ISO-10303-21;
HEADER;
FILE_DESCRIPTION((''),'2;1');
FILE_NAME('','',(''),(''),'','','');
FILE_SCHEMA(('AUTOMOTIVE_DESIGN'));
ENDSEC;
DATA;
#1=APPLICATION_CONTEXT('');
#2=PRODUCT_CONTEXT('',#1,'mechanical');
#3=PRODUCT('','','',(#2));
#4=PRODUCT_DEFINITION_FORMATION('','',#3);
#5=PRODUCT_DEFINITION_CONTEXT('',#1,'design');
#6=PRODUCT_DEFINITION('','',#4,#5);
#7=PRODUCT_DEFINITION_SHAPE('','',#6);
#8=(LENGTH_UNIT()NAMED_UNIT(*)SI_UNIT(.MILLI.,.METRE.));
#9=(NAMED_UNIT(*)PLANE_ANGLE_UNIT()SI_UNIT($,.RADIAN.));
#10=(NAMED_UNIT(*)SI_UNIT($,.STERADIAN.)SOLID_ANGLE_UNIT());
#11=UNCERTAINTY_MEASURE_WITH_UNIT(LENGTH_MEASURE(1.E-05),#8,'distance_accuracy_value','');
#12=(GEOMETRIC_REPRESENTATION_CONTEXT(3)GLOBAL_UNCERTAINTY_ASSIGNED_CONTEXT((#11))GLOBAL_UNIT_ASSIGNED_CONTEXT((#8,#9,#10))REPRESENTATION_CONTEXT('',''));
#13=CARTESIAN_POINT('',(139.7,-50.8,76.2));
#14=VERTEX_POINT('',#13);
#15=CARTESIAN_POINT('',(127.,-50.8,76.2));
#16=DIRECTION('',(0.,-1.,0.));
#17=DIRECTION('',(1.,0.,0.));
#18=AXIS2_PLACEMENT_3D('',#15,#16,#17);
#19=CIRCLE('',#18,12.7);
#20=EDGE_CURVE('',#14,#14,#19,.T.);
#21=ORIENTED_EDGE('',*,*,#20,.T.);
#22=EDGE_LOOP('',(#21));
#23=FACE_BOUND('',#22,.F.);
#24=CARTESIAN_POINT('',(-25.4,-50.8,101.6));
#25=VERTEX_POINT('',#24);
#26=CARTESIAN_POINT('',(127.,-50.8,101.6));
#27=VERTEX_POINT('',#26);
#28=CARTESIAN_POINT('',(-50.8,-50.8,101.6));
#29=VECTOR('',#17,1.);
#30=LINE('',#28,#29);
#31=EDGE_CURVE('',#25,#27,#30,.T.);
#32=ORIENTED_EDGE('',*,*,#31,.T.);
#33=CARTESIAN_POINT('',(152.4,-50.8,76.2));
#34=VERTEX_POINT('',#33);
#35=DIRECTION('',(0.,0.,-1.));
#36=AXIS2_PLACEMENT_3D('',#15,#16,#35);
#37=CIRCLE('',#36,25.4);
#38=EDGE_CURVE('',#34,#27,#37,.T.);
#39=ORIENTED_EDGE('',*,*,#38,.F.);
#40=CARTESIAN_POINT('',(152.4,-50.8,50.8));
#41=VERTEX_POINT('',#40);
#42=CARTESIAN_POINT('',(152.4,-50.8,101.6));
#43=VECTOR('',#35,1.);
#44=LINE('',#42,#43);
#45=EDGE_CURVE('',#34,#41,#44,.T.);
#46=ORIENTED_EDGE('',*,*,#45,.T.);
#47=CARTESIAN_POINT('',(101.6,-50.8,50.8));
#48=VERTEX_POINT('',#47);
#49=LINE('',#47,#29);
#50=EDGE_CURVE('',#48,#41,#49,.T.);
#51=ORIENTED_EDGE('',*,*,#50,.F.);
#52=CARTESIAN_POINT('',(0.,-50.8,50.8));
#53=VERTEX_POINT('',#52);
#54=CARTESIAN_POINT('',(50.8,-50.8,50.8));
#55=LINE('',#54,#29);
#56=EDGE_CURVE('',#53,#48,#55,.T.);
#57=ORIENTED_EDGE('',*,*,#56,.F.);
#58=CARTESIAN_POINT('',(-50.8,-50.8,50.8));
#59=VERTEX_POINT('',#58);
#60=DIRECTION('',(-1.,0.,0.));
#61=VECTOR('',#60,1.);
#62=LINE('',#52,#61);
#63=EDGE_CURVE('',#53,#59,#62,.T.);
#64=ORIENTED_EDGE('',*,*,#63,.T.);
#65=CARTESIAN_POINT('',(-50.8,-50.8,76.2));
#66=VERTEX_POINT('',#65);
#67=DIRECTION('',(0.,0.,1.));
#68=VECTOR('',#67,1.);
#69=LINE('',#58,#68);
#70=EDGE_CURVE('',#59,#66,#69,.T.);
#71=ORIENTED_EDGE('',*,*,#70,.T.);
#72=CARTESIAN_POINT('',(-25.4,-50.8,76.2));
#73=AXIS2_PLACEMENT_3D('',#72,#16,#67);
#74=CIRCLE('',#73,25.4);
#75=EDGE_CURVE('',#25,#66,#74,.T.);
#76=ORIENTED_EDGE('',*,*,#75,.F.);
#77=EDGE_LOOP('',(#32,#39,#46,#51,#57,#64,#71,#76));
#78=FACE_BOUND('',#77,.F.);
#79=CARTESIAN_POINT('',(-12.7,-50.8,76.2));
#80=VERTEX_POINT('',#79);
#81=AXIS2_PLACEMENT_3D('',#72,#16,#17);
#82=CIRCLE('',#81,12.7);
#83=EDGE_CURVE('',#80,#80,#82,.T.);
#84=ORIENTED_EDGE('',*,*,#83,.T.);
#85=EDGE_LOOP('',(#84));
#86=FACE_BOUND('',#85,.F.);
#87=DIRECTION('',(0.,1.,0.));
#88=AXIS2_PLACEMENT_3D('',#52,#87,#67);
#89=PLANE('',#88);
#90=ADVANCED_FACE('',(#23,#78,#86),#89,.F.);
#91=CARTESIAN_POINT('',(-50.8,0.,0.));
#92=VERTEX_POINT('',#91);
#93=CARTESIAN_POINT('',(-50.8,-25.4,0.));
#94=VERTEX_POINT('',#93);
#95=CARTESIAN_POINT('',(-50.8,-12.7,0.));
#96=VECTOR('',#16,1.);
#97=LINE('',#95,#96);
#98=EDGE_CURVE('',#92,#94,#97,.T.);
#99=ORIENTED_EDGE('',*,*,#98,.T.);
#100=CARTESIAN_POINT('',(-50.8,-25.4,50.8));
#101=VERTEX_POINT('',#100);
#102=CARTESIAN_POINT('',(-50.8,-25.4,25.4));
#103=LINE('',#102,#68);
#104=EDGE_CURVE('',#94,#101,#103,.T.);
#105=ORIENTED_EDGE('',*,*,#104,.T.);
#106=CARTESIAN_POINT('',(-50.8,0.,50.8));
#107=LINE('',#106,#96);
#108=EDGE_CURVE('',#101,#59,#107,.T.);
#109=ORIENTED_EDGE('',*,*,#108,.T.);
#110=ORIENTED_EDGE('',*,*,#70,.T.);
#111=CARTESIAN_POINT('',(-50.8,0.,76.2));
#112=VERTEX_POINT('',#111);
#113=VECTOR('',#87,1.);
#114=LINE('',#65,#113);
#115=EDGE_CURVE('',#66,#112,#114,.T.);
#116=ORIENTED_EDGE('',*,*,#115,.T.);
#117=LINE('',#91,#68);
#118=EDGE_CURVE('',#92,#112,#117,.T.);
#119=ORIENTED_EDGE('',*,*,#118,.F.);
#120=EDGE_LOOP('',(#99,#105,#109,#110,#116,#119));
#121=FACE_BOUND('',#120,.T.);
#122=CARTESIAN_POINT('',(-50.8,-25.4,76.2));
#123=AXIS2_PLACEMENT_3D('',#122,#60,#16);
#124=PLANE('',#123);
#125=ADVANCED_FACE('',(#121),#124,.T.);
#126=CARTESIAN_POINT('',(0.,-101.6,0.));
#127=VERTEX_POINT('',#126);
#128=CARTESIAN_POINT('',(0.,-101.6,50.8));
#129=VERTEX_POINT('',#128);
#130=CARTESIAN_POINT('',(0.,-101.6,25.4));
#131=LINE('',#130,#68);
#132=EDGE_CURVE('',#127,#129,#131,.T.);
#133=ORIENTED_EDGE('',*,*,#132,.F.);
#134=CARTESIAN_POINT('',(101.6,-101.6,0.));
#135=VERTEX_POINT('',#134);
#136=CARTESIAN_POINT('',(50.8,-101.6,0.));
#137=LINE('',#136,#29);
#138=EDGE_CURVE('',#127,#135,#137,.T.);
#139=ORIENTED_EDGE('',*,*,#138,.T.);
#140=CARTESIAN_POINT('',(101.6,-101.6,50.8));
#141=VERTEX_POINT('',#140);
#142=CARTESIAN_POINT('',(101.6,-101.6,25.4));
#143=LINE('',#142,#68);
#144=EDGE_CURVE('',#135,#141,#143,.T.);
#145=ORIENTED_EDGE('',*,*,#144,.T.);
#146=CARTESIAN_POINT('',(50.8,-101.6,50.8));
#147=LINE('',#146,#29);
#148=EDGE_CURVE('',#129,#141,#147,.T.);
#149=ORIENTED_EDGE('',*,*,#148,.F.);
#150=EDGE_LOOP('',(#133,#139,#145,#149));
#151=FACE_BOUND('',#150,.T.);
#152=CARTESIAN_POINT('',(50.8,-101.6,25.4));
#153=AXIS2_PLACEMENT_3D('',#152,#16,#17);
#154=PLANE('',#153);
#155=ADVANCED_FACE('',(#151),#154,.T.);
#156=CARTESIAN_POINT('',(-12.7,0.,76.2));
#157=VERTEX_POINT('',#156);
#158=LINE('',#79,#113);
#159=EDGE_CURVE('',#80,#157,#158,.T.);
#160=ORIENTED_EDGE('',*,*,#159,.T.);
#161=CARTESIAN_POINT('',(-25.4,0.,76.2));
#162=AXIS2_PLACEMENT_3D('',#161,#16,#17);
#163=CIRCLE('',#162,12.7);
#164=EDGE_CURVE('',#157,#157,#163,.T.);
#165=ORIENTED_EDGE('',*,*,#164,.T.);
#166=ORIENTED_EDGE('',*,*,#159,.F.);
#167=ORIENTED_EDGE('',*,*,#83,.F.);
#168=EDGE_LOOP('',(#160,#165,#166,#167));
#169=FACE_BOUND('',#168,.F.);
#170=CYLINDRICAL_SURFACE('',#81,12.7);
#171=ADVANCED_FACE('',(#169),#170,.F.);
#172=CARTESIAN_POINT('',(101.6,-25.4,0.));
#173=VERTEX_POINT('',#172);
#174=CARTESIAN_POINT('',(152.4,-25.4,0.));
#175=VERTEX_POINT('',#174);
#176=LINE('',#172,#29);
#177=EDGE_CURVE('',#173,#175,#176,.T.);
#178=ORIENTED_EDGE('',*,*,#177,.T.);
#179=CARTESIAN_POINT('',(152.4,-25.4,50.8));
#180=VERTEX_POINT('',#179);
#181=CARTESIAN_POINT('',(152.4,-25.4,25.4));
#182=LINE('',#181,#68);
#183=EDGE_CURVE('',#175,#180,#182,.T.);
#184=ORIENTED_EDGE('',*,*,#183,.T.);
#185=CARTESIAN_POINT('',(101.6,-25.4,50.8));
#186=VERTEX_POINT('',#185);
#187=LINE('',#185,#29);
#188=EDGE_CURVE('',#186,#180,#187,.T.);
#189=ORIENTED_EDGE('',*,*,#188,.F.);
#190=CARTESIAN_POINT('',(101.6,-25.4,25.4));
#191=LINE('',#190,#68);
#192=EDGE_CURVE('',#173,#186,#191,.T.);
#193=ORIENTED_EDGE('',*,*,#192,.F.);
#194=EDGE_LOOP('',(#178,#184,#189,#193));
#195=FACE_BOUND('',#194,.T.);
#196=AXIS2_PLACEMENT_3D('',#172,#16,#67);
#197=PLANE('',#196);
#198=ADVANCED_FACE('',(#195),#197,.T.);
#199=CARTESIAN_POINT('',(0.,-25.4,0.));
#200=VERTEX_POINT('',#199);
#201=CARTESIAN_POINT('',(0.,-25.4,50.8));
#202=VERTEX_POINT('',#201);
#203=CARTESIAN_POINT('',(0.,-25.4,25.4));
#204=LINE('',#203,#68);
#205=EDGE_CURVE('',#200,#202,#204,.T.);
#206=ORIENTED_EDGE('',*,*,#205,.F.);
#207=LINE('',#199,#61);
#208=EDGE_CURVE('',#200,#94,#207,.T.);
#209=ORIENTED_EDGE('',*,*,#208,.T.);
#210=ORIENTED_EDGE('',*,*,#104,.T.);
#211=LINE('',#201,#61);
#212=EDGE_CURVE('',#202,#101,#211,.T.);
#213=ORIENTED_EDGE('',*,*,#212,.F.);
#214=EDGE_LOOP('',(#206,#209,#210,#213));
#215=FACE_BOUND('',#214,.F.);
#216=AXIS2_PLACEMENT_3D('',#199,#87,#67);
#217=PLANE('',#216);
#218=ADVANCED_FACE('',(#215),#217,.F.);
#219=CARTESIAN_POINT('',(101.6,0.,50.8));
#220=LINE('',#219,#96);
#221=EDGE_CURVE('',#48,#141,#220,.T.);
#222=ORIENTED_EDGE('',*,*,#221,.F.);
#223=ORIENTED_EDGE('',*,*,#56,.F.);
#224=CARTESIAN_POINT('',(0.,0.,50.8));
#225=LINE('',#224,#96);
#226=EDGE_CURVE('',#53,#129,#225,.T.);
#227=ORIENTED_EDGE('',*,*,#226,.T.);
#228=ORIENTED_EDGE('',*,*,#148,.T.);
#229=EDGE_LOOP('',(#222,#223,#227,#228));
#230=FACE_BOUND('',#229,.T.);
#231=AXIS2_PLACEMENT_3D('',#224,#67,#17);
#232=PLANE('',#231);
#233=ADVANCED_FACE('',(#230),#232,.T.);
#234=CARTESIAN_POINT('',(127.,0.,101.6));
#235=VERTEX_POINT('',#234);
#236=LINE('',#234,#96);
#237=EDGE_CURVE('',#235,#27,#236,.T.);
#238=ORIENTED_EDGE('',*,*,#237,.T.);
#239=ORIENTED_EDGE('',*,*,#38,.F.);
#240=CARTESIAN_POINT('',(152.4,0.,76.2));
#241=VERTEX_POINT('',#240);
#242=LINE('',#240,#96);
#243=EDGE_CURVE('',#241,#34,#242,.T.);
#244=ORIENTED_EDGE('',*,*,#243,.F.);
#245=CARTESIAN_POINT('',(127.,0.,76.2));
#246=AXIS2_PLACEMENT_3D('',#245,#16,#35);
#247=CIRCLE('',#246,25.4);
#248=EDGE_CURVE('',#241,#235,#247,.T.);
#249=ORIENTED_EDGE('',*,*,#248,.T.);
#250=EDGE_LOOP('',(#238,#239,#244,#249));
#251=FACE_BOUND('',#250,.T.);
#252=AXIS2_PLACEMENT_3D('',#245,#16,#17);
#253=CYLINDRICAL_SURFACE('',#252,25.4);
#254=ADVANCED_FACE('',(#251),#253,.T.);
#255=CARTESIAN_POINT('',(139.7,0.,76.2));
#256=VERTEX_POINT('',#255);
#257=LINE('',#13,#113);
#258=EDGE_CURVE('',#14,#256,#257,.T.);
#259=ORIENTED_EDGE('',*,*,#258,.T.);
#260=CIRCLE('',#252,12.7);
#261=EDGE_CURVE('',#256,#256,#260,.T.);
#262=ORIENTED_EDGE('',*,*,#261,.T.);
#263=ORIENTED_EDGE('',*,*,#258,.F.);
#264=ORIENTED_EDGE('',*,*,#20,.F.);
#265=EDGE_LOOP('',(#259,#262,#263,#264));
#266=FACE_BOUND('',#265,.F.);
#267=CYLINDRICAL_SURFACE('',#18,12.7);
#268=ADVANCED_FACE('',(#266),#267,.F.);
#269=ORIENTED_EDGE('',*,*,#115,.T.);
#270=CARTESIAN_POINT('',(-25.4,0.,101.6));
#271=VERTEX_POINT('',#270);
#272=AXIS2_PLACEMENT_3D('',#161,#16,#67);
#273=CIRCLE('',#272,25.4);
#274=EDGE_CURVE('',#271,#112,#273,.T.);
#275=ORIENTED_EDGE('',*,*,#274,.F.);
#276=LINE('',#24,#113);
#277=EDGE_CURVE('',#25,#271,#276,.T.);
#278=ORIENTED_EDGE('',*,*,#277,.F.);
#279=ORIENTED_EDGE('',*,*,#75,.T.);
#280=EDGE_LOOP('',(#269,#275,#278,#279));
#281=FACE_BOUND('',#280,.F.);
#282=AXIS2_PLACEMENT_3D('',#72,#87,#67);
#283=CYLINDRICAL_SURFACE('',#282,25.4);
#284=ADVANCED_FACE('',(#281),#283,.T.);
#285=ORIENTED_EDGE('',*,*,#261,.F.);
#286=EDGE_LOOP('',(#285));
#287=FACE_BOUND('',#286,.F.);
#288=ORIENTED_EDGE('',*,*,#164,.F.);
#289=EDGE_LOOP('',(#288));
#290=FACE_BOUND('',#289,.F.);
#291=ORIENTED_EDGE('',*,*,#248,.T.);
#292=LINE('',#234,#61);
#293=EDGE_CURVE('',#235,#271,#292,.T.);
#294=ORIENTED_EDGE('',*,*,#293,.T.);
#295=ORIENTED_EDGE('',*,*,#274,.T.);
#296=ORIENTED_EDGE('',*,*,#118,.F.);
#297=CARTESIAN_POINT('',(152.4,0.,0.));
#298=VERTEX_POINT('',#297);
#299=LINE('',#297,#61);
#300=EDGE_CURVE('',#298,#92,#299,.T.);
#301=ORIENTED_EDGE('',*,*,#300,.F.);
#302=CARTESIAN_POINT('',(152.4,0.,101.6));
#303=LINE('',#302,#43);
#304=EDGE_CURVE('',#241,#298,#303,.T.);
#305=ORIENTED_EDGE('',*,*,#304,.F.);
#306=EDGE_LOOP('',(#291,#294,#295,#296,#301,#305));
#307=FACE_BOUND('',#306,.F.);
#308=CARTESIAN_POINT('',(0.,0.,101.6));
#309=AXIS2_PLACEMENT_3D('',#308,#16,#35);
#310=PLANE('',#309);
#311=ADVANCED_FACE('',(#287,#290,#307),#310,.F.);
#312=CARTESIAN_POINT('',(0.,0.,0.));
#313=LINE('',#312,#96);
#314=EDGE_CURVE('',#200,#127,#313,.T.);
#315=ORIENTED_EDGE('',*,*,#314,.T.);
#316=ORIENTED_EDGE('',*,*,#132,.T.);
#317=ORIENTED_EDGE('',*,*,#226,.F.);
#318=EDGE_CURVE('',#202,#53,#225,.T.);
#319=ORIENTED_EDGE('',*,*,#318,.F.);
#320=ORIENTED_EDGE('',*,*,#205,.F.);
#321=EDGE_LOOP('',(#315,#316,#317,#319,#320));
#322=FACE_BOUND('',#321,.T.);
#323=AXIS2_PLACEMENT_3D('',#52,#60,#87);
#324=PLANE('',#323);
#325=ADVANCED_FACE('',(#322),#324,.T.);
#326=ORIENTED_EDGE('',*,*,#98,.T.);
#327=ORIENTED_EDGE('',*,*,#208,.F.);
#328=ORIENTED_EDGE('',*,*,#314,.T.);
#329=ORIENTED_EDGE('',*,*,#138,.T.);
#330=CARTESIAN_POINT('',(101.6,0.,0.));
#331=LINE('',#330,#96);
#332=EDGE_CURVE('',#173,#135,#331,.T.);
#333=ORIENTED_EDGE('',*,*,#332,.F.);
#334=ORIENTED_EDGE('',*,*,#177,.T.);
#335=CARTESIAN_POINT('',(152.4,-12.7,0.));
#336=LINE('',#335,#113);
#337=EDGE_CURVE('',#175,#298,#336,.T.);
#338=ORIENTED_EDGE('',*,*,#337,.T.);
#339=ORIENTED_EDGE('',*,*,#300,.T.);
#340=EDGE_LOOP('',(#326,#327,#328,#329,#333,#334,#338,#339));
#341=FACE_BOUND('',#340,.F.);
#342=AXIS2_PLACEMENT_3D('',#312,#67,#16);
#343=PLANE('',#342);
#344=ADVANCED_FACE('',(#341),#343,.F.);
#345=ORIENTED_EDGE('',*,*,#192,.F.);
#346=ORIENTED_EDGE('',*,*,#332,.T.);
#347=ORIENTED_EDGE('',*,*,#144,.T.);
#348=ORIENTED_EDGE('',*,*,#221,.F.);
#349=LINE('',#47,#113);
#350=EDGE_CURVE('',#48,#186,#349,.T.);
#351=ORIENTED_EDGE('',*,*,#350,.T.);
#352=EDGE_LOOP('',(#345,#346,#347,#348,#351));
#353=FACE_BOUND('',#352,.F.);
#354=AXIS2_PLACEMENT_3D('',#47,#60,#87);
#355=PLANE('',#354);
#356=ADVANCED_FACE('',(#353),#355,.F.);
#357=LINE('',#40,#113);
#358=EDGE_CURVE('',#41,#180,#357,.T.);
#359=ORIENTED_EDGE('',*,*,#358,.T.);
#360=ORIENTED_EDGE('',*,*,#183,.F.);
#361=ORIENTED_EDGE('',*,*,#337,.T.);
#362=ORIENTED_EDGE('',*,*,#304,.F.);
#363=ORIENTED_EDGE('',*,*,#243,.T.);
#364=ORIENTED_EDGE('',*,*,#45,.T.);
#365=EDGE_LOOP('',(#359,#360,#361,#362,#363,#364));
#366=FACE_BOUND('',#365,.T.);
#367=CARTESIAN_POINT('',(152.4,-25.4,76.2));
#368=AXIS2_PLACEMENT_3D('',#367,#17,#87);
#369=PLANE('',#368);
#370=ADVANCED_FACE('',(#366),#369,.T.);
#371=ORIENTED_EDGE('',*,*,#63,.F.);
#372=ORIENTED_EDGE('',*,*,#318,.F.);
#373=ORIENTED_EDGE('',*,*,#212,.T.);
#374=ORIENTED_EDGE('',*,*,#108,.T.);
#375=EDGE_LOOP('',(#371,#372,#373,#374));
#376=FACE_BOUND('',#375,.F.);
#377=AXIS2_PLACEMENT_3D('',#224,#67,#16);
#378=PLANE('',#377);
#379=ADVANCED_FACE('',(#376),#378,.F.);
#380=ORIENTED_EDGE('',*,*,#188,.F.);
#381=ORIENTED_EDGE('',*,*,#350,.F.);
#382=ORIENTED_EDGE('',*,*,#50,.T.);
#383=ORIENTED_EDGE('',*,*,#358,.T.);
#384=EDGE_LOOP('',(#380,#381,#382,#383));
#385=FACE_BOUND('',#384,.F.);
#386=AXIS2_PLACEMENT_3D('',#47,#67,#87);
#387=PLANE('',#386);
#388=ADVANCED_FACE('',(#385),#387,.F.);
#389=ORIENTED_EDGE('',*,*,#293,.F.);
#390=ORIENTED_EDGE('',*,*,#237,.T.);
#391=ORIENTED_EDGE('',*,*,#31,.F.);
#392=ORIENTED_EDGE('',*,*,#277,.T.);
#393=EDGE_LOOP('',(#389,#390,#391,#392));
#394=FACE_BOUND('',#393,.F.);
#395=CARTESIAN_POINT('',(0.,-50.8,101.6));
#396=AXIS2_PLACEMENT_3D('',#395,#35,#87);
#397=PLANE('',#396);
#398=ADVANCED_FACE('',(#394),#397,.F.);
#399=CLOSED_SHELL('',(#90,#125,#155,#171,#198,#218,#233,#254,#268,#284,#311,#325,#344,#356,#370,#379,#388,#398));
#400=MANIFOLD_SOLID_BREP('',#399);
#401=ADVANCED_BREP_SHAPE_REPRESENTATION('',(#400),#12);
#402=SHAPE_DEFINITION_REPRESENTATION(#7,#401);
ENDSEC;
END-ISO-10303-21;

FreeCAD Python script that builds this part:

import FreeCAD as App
import Part
import Sketcher
Q = App.Units.Quantity


def edges_at(feature, points):
    """Names of the edges that pass closest to the given points."""
    edges = feature.Shape.Edges
    near = lambda p: min(range(len(edges)), key=lambda i: edges[i].distToShape(Part.Vertex(*p))[0])
    return sorted({f"Edge{near(p) + 1}" for p in points})


def add_polygon(sketch, points):
    """Adds a closed chain of lines whose ends are joined by coincident constraints."""
    first, n = sketch.GeometryCount, len(points)
    for a, b in zip(points, points[1:] + points[:1]):
        sketch.addGeometry(Part.LineSegment(App.Vector(*a, 0), App.Vector(*b, 0)), False)
    for i in range(n):
        sketch.addConstraint(Sketcher.Constraint("Coincident", first + i, 2, first + (i + 1) % n, 1))

doc = App.newDocument("Part")
body = doc.addObject("PartDesign::Body", "Body")

# Sketch on XZ plane
sketch1 = doc.addObject("Sketcher::SketchObject", "Sketch")
body.addObject(sketch1)
sketch1.AttachmentSupport = (doc.XZ_Plane, [""])
sketch1.MapMode = "FlatFace"
add_polygon(sketch1, [(0, 50.8), (0, 0), (101.6, 0), (101.6, 50.8)])  # lines 0-3
sketch1.addConstraint(Sketcher.Constraint("Vertical", 0))
sketch1.addConstraint(Sketcher.Constraint("Horizontal", 1))
sketch1.addConstraint(Sketcher.Constraint("Vertical", 2))
sketch1.addConstraint(Sketcher.Constraint("Horizontal", 3))
sketch1.addConstraint(Sketcher.Constraint("Coincident", 0, 2, -1, 1))
sketch1.addConstraint(Sketcher.Constraint("DistanceX", 1, 1, 1, 2, Q("4 in")))
sketch1.addConstraint(Sketcher.Constraint("DistanceY", 0, 2, 0, 1, Q("2 in")))
pad1 = doc.addObject("PartDesign::Pad", "Pad")
body.addObject(pad1)
pad1.Profile = sketch1
pad1.Length = Q("4 in")

# Sketch on XY plane
sketch2 = doc.addObject("Sketcher::SketchObject", "Sketch001")
body.addObject(sketch2)
sketch2.AttachmentSupport = (doc.XY_Plane, [""])
sketch2.MapMode = "FlatFace"
sketch2.AttachmentOffset = App.Placement(App.Vector(0, 0, 2 * 25.4), App.Rotation())
add_polygon(sketch2, [(0, 0), (0, -50.8), (101.6, -50.8), (101.6, 0)])  # lines 0-3
sketch2.addConstraint(Sketcher.Constraint("Vertical", 0))
sketch2.addConstraint(Sketcher.Constraint("Horizontal", 1))
sketch2.addConstraint(Sketcher.Constraint("Vertical", 2))
sketch2.addConstraint(Sketcher.Constraint("Horizontal", 3))
sketch2.addConstraint(Sketcher.Constraint("Coincident", 3, 2, -1, 1))
sketch2.addConstraint(Sketcher.Constraint("DistanceX", 1, 1, 1, 2, Q("4 in")))
sketch2.addConstraint(Sketcher.Constraint("DistanceY", 0, 2, 0, 1, Q("2 in")))
pad2 = doc.addObject("PartDesign::Pad", "Pad001")
body.addObject(pad2)
pad2.Profile = sketch2
pad2.Length = Q("2 in")

# Sketch on YZ plane
sketch3 = doc.addObject("Sketcher::SketchObject", "Sketch002")
body.addObject(sketch3)
sketch3.AttachmentSupport = (doc.YZ_Plane, [""])
sketch3.MapMode = "FlatFace"
sketch3.AttachmentOffset = App.Placement(App.Vector(0, 0, 4 * 25.4), App.Rotation())
add_polygon(sketch3, [(-25.4, 50.8), (-25.4, 0), (0, 0), (0, 50.8)])  # lines 0-3
sketch3.addConstraint(Sketcher.Constraint("Vertical", 0))
sketch3.addConstraint(Sketcher.Constraint("Horizontal", 1))
sketch3.addConstraint(Sketcher.Constraint("Vertical", 2))
sketch3.addConstraint(Sketcher.Constraint("Horizontal", 3))
sketch3.addConstraint(Sketcher.Constraint("Coincident", 1, 2, -1, 1))
sketch3.addConstraint(Sketcher.Constraint("DistanceX", 1, 1, 1, 2, Q("1 in")))
sketch3.addConstraint(Sketcher.Constraint("DistanceY", 0, 2, 0, 1, Q("2 in")))
pad3 = doc.addObject("PartDesign::Pad", "Pad002")
body.addObject(pad3)
pad3.Profile = sketch3
pad3.Length = Q("2 in")

# Sketch on YZ plane
sketch4 = doc.addObject("Sketcher::SketchObject", "Sketch003")
body.addObject(sketch4)
sketch4.AttachmentSupport = (doc.YZ_Plane, [""])
sketch4.MapMode = "FlatFace"
sketch4.AttachmentOffset = App.Placement(App.Vector(0, 0, 4 * 25.4), App.Rotation())
add_polygon(sketch4, [(0, 50.8), (0, 101.6), (-50.8, 101.6), (-50.8, 50.8)])  # lines 0-3
sketch4.addConstraint(Sketcher.Constraint("Vertical", 0))
sketch4.addConstraint(Sketcher.Constraint("Horizontal", 1))
sketch4.addConstraint(Sketcher.Constraint("Vertical", 2))
sketch4.addConstraint(Sketcher.Constraint("Horizontal", 3))
sketch4.addConstraint(Sketcher.Constraint("PointOnObject", 0, 2, -2))
sketch4.addConstraint(Sketcher.Constraint("Equal", 3, 0))
sketch4.addConstraint(Sketcher.Constraint("DistanceX", 1, 2, 1, 1, Q("2 in")))
sketch4.addConstraint(Sketcher.Constraint("DistanceY", -1, 1, 0, 2, Q("4 in")))
pad4 = doc.addObject("PartDesign::Pad", "Pad003")
body.addObject(pad4)
pad4.Profile = sketch4
pad4.Length = Q("2 in")
doc.recompute()

fillet = doc.addObject("PartDesign::Fillet", "Fillet")
body.addObject(fillet)
fillet.Base = (pad4, edges_at(pad4, [(152.4, -25.4, 101.6)]))
fillet.Radius = Q("1 in")

# Sketch on YZ plane
sketch5 = doc.addObject("Sketcher::SketchObject", "Sketch004")
body.addObject(sketch5)
sketch5.AttachmentSupport = (doc.YZ_Plane, [""])
sketch5.MapMode = "FlatFace"
add_polygon(sketch5, [(0, 50.8), (0, 0), (-25.4, 0), (-25.4, 50.8)])  # lines 0-3
sketch5.addConstraint(Sketcher.Constraint("Vertical", 0))
sketch5.addConstraint(Sketcher.Constraint("Horizontal", 1))
sketch5.addConstraint(Sketcher.Constraint("Vertical", 2))
sketch5.addConstraint(Sketcher.Constraint("Horizontal", 3))
sketch5.addConstraint(Sketcher.Constraint("Coincident", 0, 2, -1, 1))
sketch5.addConstraint(Sketcher.Constraint("DistanceX", 1, 2, 1, 1, Q("1 in")))
sketch5.addConstraint(Sketcher.Constraint("DistanceY", 0, 2, 0, 1, Q("2 in")))
pad5 = doc.addObject("PartDesign::Pad", "Pad004")
body.addObject(pad5)
pad5.Profile = sketch5
pad5.Length = Q("2 in")
pad5.Reversed = True

# Sketch on YZ plane
sketch6 = doc.addObject("Sketcher::SketchObject", "Sketch005")
body.addObject(sketch6)
sketch6.AttachmentSupport = (doc.YZ_Plane, [""])
sketch6.MapMode = "FlatFace"
add_polygon(sketch6, [(-50.8, 101.6), (0, 101.6), (0, 50.8), (-50.8, 50.8)])  # lines 0-3
sketch6.addConstraint(Sketcher.Constraint("Horizontal", 0))
sketch6.addConstraint(Sketcher.Constraint("Vertical", 1))
sketch6.addConstraint(Sketcher.Constraint("Horizontal", 2))
sketch6.addConstraint(Sketcher.Constraint("Vertical", 3))
sketch6.addConstraint(Sketcher.Constraint("PointOnObject", 0, 2, -2))
sketch6.addConstraint(Sketcher.Constraint("Equal", 2, 1))
sketch6.addConstraint(Sketcher.Constraint("DistanceX", 0, 1, 0, 2, Q("2 in")))
sketch6.addConstraint(Sketcher.Constraint("DistanceY", -1, 1, 0, 2, Q("4 in")))
pad6 = doc.addObject("PartDesign::Pad", "Pad005")
body.addObject(pad6)
pad6.Profile = sketch6
pad6.Length = Q("2 in")
pad6.Reversed = True
doc.recompute()

fillet2 = doc.addObject("PartDesign::Fillet", "Fillet001")
body.addObject(fillet2)
fillet2.Base = (pad6, edges_at(pad6, [(-50.8, -25.4, 101.6)]))
fillet2.Radius = Q("1 in")

# Sketch on XZ plane
sketch7 = doc.addObject("Sketcher::SketchObject", "Sketch006")
body.addObject(sketch7)
sketch7.AttachmentSupport = (doc.XZ_Plane, [""])
sketch7.MapMode = "FlatFace"
sketch7.AttachmentOffset = App.Placement(App.Vector(0, 0, 2 * 25.4), App.Rotation())
sketch7.addGeometry(Part.Circle(App.Vector(-25.4, 76.2, 0), App.Vector(0, 0, 1), 12.7), False)
sketch7.addConstraint(Sketcher.Constraint("Diameter", 0, Q("1 in")))
sketch7.addConstraint(Sketcher.Constraint("DistanceX", 0, 3, -1, 1, Q("1 in")))
sketch7.addConstraint(Sketcher.Constraint("DistanceY", -1, 1, 0, 3, Q("3 in")))
pocket1 = doc.addObject("PartDesign::Pocket", "Pocket")
body.addObject(pocket1)
pocket1.Profile = sketch7
pocket1.Length = Q("4 in")

# Sketch on XZ plane
sketch8 = doc.addObject("Sketcher::SketchObject", "Sketch007")
body.addObject(sketch8)
sketch8.AttachmentSupport = (doc.XZ_Plane, [""])
sketch8.MapMode = "FlatFace"
sketch8.AttachmentOffset = App.Placement(App.Vector(0, 0, 2 * 25.4), App.Rotation())
sketch8.addGeometry(Part.Circle(App.Vector(127, 76.2, 0), App.Vector(0, 0, 1), 12.7), False)
sketch8.addConstraint(Sketcher.Constraint("Diameter", 0, Q("1 in")))
sketch8.addConstraint(Sketcher.Constraint("DistanceX", -1, 1, 0, 3, Q("5 in")))
sketch8.addConstraint(Sketcher.Constraint("DistanceY", -1, 1, 0, 3, Q("3 in")))
pocket2 = doc.addObject("PartDesign::Pocket", "Pocket001")
body.addObject(pocket2)
pocket2.Profile = sketch8
pocket2.Length = Q("4 in")

doc.recompute()
